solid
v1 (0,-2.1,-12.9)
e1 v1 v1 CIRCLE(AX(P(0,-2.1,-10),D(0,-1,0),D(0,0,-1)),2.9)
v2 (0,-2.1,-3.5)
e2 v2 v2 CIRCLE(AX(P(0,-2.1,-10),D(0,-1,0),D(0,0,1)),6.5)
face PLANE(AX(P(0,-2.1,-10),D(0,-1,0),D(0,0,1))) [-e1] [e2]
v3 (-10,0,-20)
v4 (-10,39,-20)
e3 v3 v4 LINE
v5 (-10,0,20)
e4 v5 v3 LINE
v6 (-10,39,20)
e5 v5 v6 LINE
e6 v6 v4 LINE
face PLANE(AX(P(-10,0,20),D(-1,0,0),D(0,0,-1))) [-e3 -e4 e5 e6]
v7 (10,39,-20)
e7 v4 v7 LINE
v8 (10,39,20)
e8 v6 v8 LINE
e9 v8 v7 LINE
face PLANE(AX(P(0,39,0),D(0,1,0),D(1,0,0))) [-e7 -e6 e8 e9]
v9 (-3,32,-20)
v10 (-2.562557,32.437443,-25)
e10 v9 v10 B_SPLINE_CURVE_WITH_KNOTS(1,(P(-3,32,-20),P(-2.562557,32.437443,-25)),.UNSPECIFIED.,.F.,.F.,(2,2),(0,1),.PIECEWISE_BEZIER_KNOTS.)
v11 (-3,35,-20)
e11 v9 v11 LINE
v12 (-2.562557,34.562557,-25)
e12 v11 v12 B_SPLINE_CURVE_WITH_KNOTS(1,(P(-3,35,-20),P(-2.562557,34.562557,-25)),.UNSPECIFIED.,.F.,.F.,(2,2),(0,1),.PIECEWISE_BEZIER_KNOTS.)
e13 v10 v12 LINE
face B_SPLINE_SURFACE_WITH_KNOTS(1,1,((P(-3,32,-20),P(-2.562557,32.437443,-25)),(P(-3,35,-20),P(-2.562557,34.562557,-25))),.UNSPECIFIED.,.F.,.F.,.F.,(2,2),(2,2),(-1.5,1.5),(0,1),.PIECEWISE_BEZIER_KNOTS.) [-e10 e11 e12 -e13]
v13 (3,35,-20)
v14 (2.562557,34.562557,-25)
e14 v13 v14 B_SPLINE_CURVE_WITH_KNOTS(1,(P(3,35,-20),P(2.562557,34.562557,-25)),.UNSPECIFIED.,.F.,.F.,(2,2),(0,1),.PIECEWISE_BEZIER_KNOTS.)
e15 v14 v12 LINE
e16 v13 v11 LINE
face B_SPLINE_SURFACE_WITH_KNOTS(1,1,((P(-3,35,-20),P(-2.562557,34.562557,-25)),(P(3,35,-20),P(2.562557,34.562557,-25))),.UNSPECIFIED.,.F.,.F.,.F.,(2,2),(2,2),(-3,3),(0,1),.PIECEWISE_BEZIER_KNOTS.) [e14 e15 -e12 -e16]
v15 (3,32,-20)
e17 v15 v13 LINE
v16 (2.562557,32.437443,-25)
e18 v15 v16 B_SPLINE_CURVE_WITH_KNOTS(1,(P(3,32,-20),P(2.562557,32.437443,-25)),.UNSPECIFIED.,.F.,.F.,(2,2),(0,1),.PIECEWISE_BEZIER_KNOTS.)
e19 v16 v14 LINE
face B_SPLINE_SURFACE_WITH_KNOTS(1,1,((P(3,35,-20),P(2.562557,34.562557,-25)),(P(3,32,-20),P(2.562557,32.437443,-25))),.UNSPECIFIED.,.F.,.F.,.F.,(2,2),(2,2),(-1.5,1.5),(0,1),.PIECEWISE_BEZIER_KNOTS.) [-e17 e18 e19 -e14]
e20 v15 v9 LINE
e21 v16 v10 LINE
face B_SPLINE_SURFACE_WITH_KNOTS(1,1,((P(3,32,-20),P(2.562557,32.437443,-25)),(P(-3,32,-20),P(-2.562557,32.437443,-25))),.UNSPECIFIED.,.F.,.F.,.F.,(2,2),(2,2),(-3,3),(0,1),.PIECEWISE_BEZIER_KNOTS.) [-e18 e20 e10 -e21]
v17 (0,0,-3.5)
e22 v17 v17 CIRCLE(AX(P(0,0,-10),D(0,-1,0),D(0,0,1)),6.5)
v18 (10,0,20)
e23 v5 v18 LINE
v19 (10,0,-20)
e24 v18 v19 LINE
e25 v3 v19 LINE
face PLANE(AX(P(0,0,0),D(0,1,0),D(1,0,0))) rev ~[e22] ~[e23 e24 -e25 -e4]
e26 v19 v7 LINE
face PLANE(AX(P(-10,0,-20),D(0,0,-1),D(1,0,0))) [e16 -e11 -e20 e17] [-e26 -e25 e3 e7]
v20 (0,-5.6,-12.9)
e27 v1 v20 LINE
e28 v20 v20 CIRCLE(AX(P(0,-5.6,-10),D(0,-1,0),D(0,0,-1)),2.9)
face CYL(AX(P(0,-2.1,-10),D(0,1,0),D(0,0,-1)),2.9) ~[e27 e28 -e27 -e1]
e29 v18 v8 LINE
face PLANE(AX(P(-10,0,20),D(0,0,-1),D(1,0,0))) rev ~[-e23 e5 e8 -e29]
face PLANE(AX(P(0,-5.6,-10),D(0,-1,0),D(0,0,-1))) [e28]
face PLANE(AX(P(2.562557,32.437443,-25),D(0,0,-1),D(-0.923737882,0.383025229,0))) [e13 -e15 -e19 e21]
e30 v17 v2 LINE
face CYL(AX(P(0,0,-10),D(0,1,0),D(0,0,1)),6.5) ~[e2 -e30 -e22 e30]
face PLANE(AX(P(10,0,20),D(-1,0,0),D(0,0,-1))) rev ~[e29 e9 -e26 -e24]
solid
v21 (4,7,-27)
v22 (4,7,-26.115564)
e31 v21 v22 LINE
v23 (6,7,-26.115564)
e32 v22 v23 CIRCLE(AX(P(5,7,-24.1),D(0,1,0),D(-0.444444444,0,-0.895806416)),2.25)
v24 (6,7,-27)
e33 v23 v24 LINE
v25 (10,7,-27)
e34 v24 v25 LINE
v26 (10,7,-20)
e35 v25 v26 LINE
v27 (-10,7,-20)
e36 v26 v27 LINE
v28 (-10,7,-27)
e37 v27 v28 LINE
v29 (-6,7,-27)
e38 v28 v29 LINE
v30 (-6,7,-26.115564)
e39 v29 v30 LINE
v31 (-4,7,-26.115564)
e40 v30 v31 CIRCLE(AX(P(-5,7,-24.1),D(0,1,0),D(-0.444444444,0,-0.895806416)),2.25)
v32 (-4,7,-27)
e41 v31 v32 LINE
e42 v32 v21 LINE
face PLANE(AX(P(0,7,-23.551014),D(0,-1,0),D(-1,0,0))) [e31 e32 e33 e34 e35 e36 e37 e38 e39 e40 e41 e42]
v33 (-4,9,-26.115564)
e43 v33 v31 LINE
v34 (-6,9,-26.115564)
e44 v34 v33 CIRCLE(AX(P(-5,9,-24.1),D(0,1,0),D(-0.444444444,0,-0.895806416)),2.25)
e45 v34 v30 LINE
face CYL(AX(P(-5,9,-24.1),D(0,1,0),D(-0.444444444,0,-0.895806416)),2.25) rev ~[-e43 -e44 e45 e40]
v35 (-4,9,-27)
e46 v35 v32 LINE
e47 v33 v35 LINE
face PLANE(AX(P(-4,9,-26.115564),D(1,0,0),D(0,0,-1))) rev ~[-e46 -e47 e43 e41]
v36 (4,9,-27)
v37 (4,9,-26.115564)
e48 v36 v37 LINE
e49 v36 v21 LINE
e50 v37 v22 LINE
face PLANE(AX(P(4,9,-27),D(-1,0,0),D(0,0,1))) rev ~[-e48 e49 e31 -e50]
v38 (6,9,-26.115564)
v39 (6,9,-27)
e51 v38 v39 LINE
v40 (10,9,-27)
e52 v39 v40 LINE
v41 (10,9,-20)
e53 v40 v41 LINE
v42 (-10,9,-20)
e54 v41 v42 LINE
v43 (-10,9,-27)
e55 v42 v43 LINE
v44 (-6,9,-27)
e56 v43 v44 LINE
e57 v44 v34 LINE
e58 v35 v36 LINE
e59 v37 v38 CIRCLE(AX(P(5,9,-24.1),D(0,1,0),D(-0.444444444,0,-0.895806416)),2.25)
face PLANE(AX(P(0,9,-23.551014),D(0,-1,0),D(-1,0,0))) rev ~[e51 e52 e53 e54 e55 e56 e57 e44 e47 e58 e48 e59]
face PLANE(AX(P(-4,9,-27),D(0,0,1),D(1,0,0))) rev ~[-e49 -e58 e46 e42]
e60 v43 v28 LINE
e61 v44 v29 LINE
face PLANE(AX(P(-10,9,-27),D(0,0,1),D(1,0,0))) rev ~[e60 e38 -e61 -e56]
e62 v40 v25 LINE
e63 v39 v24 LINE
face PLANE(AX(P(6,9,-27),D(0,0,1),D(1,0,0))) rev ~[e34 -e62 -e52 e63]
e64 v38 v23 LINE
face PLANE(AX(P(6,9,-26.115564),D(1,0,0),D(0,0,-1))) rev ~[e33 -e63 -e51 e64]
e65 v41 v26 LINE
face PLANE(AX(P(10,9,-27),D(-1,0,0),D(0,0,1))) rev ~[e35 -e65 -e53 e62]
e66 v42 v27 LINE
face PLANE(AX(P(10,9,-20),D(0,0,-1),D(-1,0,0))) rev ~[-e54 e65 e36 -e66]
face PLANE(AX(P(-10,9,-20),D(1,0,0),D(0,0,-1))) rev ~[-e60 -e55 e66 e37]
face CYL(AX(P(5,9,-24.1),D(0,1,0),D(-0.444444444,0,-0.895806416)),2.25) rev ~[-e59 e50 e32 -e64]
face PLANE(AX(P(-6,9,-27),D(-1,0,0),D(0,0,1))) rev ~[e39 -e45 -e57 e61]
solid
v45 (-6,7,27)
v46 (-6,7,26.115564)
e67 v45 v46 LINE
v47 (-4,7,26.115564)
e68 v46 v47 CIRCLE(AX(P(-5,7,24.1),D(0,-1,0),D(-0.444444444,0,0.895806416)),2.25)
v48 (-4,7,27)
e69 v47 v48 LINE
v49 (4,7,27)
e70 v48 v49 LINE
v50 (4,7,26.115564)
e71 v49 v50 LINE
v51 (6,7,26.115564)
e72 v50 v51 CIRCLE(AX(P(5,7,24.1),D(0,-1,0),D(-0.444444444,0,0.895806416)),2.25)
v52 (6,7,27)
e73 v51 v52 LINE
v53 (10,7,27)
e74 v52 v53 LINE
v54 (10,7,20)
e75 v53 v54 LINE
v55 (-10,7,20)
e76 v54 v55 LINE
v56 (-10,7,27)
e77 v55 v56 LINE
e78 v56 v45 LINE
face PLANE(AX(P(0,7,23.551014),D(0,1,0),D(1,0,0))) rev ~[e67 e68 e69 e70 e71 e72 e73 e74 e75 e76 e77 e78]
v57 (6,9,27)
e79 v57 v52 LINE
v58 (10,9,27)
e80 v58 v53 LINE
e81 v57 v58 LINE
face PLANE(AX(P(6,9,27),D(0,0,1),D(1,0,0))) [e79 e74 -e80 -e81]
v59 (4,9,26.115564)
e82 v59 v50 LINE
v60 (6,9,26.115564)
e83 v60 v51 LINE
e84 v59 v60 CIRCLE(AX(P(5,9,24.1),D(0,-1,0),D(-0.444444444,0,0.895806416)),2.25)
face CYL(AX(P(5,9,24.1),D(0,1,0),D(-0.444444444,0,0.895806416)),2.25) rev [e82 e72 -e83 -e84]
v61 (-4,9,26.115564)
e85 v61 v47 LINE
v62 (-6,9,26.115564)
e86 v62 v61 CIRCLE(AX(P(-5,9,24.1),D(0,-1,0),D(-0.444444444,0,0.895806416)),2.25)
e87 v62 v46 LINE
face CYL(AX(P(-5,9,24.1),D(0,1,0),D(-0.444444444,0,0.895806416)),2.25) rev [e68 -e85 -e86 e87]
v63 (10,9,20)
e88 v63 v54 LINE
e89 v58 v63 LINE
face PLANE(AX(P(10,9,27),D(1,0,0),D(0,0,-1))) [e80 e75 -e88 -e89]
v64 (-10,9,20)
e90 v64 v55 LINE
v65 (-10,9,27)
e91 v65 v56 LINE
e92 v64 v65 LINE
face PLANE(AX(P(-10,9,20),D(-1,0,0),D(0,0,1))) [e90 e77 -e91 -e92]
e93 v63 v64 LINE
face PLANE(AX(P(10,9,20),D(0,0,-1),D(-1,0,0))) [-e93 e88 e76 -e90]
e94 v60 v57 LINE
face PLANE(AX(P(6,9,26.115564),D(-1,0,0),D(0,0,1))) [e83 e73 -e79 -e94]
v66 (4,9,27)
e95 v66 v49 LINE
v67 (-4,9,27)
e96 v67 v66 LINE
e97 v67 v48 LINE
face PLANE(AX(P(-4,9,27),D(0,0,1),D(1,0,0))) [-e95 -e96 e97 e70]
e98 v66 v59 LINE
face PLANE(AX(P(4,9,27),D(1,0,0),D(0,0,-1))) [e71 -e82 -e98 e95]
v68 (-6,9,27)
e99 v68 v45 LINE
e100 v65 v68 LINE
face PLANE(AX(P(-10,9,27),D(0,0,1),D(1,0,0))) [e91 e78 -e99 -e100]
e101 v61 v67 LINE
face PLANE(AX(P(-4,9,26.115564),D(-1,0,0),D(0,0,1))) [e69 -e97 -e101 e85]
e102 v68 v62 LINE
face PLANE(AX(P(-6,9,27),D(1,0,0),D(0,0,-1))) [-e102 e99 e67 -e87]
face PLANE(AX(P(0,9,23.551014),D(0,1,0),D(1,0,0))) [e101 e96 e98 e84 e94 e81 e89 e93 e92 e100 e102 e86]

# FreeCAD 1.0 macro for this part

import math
import FreeCAD as App
import Part
import Sketcher


def add_polygon(sketch, points):
    """Adds a closed chain of lines whose ends are joined by coincident constraints."""
    first, n = sketch.GeometryCount, len(points)
    for a, b in zip(points, points[1:] + points[:1]):
        sketch.addGeometry(Part.LineSegment(App.Vector(*a, 0), App.Vector(*b, 0)), False)
    for i in range(n):
        sketch.addConstraint(Sketcher.Constraint("Coincident", first + i, 2, first + (i + 1) % n, 1))

doc = App.newDocument("Part")
body = doc.addObject("PartDesign::Body", "Body")

# Sketch on XZ plane
sketch1 = body.newObject("Sketcher::SketchObject", "Sketch")
sketch1.AttachmentSupport = (doc.getObject("XZ_Plane"), [""])
sketch1.MapMode = "FlatFace"
add_polygon(sketch1, [(-10, -20), (-10, 20), (10, 20), (10, -20)])  # lines 0-3
sketch1.addConstraint([
    Sketcher.Constraint("Vertical", 0),
    Sketcher.Constraint("Horizontal", 1),
    Sketcher.Constraint("Vertical", 2),
    Sketcher.Constraint("Horizontal", 3),
    Sketcher.Constraint("Symmetric", 0, 2, 2, 2, -1, 1),
    Sketcher.Constraint("DistanceX", 1, 1, 1, 2, 20.0),
    Sketcher.Constraint("DistanceY", 0, 1, 0, 2, 40.0),
])
pad1 = body.newObject("PartDesign::Pad", "Pad")
pad1.Profile = sketch1
pad1.Length = 39
pad1.Reversed = True

# Sketch on XZ plane
sketch2 = body.newObject("Sketcher::SketchObject", "Sketch001")
sketch2.AttachmentSupport = (doc.getObject("XZ_Plane"), [""])
sketch2.MapMode = "FlatFace"
sketch2.addGeometry(Part.Circle(App.Vector(0, -10, 0), App.Vector(0, 0, 1), 6.5), False)
sketch2.addConstraint([
    Sketcher.Constraint("PointOnObject", 0, 3, -2),
    Sketcher.Constraint("Diameter", 0, 13.0),
    Sketcher.Constraint("DistanceY", 0, 3, -1, 1, 10.0),
])
pad2 = body.newObject("PartDesign::Pad", "Pad001")
pad2.Profile = sketch2
pad2.Length = 2.1

# Sketch on XZ plane
sketch3 = body.newObject("Sketcher::SketchObject", "Sketch002")
sketch3.AttachmentSupport = (doc.getObject("XZ_Plane"), [""])
sketch3.MapMode = "FlatFace"
sketch3.AttachmentOffset = App.Placement(App.Vector(0, 0, 2.1), App.Rotation())
sketch3.addGeometry(Part.Circle(App.Vector(0, -10, 0), App.Vector(0, 0, 1), 2.9), False)
sketch3.addConstraint([
    Sketcher.Constraint("PointOnObject", 0, 3, -2),
    Sketcher.Constraint("Diameter", 0, 5.8),
    Sketcher.Constraint("DistanceY", 0, 3, -1, 1, 10.0),
])
pad3 = body.newObject("PartDesign::Pad", "Pad002")
pad3.Profile = sketch3
pad3.Length = 3.5

# Sketch on XY plane
sketch4 = body.newObject("Sketcher::SketchObject", "Sketch003")
sketch4.AttachmentSupport = (doc.getObject("XY_Plane"), [""])
sketch4.MapMode = "FlatFace"
sketch4.AttachmentOffset = App.Placement(App.Vector(0, 0, -20), App.Rotation())
add_polygon(sketch4, [(3, 35), (3, 32), (-3, 32), (-3, 35)])  # lines 0-3
sketch4.addConstraint([
    Sketcher.Constraint("Vertical", 0),
    Sketcher.Constraint("Horizontal", 1),
    Sketcher.Constraint("Vertical", 2),
    Sketcher.Constraint("Horizontal", 3),
    Sketcher.Constraint("DistanceX", 1, 2, 1, 1, 6.0),
    Sketcher.Constraint("DistanceY", 0, 2, 0, 1, 3.0),
    Sketcher.Constraint("DistanceX", -1, 1, 0, 2, 3.0),
    Sketcher.Constraint("DistanceY", -1, 1, 0, 2, 32.0),
])
pad4 = body.newObject("PartDesign::Pad", "Pad003")
pad4.Profile = sketch4
pad4.Length = 5
pad4.Reversed = True
pad4.TaperAngle = -5
body2 = doc.addObject("PartDesign::Body", "Body001")

# Sketch on XZ plane
sketch5 = body2.newObject("Sketcher::SketchObject", "Sketch004")
sketch5.AttachmentSupport = (doc.getObject("XZ_Plane001"), [""])
sketch5.MapMode = "FlatFace"
sketch5.AttachmentOffset = App.Placement(App.Vector(0, 0, -8), App.Rotation())
sketch5.addGeometry([
    Part.LineSegment(App.Vector(-10, 20, 0), App.Vector(10, 20, 0)),  # 0
    Part.LineSegment(App.Vector(10, 20, 0), App.Vector(10, 27, 0)),  # 1
    Part.LineSegment(App.Vector(10, 27, 0), App.Vector(6, 27, 0)),  # 2
    Part.LineSegment(App.Vector(6, 27, 0), App.Vector(6, 26.115564, 0)),  # 3
    Part.ArcOfCircle(Part.Circle(App.Vector(5, 24.1, 0), App.Vector(0, 0, 1), 2.25), math.radians(116.3878), math.radians(423.6122)),  # 4
    Part.LineSegment(App.Vector(4, 26.115564, 0), App.Vector(4, 27, 0)),  # 5
    Part.LineSegment(App.Vector(4, 27, 0), App.Vector(-4, 27, 0)),  # 6
    Part.LineSegment(App.Vector(-4, 27, 0), App.Vector(-4, 26.115564, 0)),  # 7
    Part.ArcOfCircle(Part.Circle(App.Vector(-5, 24.1, 0), App.Vector(0, 0, 1), 2.25), math.radians(116.3878), math.radians(423.6122)),  # 8
    Part.LineSegment(App.Vector(-6, 26.115564, 0), App.Vector(-6, 27, 0)),  # 9
    Part.LineSegment(App.Vector(-6, 27, 0), App.Vector(-10, 27, 0)),  # 10
    Part.LineSegment(App.Vector(-10, 27, 0), App.Vector(-10, 20, 0)),  # 11
], False)
sketch5.addConstraint([
    Sketcher.Constraint("Coincident", 0, 2, 1, 1),
    Sketcher.Constraint("Coincident", 1, 2, 2, 1),
    Sketcher.Constraint("Coincident", 2, 2, 3, 1),
    Sketcher.Constraint("Coincident", 3, 2, 4, 2),
    Sketcher.Constraint("Coincident", 4, 1, 5, 1),
    Sketcher.Constraint("Coincident", 5, 2, 6, 1),
    Sketcher.Constraint("Coincident", 6, 2, 7, 1),
    Sketcher.Constraint("Coincident", 7, 2, 8, 2),
    Sketcher.Constraint("Coincident", 8, 1, 9, 1),
    Sketcher.Constraint("Coincident", 9, 2, 10, 1),
    Sketcher.Constraint("Coincident", 10, 2, 11, 1),
    Sketcher.Constraint("Coincident", 11, 2, 0, 1),
    Sketcher.Constraint("Horizontal", 0),
    Sketcher.Constraint("Vertical", 1),
    Sketcher.Constraint("Horizontal", 2),
    Sketcher.Constraint("Vertical", 3),
    Sketcher.Constraint("Vertical", 5),
    Sketcher.Constraint("Horizontal", 6),
    Sketcher.Constraint("Vertical", 7),
    Sketcher.Constraint("Vertical", 9),
    Sketcher.Constraint("Horizontal", 10),
    Sketcher.Constraint("Vertical", 11),
    Sketcher.Constraint("Equal", 4, 8),
    Sketcher.Constraint("Symmetric", 4, 3, 8, 3, -2),
    Sketcher.Constraint("Symmetric", 2, 2, 9, 2, -2),
    Sketcher.Constraint("Horizontal", 3, 2, 4, 1),
    Sketcher.Constraint("Horizontal", 2, 2, 5, 2),
    Sketcher.Constraint("Horizontal", 4, 1, 7, 2),
    Sketcher.Constraint("Equal", 2, 10),
    Sketcher.Constraint("DistanceX", 0, 1, 0, 2, 20.0),
    Sketcher.Constraint("DistanceX", 2, 2, 2, 1, 4.0),
    Sketcher.Constraint("DistanceX", 6, 2, 6, 1, 8.0),
    Sketcher.Constraint("DistanceY", 1, 1, 1, 2, 7.0),
    Sketcher.Constraint("Radius", 4, 2.25),
    Sketcher.Constraint("DistanceY", -1, 1, 0, 2, 20.0),
    Sketcher.Constraint("DistanceY", -1, 1, 4, 3, 24.1),
])
pad5 = body2.newObject("PartDesign::Pad", "Pad004")
pad5.Profile = sketch5
pad5.Type = "TwoLengths"
pad5.Length = 1
pad5.Length2 = 1
body3 = doc.addObject("PartDesign::Body", "Body002")

# Sketch on XZ plane
sketch6 = body3.newObject("Sketcher::SketchObject", "Sketch005")
sketch6.AttachmentSupport = (doc.getObject("XZ_Plane002"), [""])
sketch6.MapMode = "FlatFace"
sketch6.AttachmentOffset = App.Placement(App.Vector(0, 0, -8), App.Rotation())
sketch6.addGeometry([
    Part.LineSegment(App.Vector(10, -20, 0), App.Vector(-10, -20, 0)),  # 0
    Part.LineSegment(App.Vector(-10, -20, 0), App.Vector(-10, -27, 0)),  # 1
    Part.LineSegment(App.Vector(-10, -27, 0), App.Vector(-6, -27, 0)),  # 2
    Part.LineSegment(App.Vector(-6, -27, 0), App.Vector(-6, -26.115564, 0)),  # 3
    Part.ArcOfCircle(Part.Circle(App.Vector(-5, -24.1, 0), App.Vector(0, 0, 1), 2.25), math.radians(-63.6122), math.radians(243.6122)),  # 4
    Part.LineSegment(App.Vector(-4, -26.115564, 0), App.Vector(-4, -27, 0)),  # 5
    Part.LineSegment(App.Vector(-4, -27, 0), App.Vector(4, -27, 0)),  # 6
    Part.LineSegment(App.Vector(4, -27, 0), App.Vector(4, -26.115564, 0)),  # 7
    Part.ArcOfCircle(Part.Circle(App.Vector(5, -24.1, 0), App.Vector(0, 0, 1), 2.25), math.radians(-63.6122), math.radians(243.6122)),  # 8
    Part.LineSegment(App.Vector(6, -26.115564, 0), App.Vector(6, -27, 0)),  # 9
    Part.LineSegment(App.Vector(6, -27, 0), App.Vector(10, -27, 0)),  # 10
    Part.LineSegment(App.Vector(10, -27, 0), App.Vector(10, -20, 0)),  # 11
], False)
sketch6.addConstraint([
    Sketcher.Constraint("Coincident", 0, 2, 1, 1),
    Sketcher.Constraint("Coincident", 1, 2, 2, 1),
    Sketcher.Constraint("Coincident", 2, 2, 3, 1),
    Sketcher.Constraint("Coincident", 3, 2, 4, 2),
    Sketcher.Constraint("Coincident", 4, 1, 5, 1),
    Sketcher.Constraint("Coincident", 5, 2, 6, 1),
    Sketcher.Constraint("Coincident", 6, 2, 7, 1),
    Sketcher.Constraint("Coincident", 7, 2, 8, 2),
    Sketcher.Constraint("Coincident", 8, 1, 9, 1),
    Sketcher.Constraint("Coincident", 9, 2, 10, 1),
    Sketcher.Constraint("Coincident", 10, 2, 11, 1),
    Sketcher.Constraint("Coincident", 11, 2, 0, 1),
    Sketcher.Constraint("Horizontal", 0),
    Sketcher.Constraint("Vertical", 1),
    Sketcher.Constraint("Horizontal", 2),
    Sketcher.Constraint("Vertical", 3),
    Sketcher.Constraint("Vertical", 5),
    Sketcher.Constraint("Horizontal", 6),
    Sketcher.Constraint("Vertical", 7),
    Sketcher.Constraint("Vertical", 9),
    Sketcher.Constraint("Horizontal", 10),
    Sketcher.Constraint("Vertical", 11),
    Sketcher.Constraint("Equal", 4, 8),
    Sketcher.Constraint("Symmetric", 4, 3, 8, 3, -2),
    Sketcher.Constraint("Symmetric", 2, 2, 9, 2, -2),
    Sketcher.Constraint("Horizontal", 3, 2, 4, 1),
    Sketcher.Constraint("Horizontal", 2, 2, 5, 2),
    Sketcher.Constraint("Horizontal", 4, 1, 7, 2),
    Sketcher.Constraint("Equal", 2, 10),
    Sketcher.Constraint("DistanceX", 0, 2, 0, 1, 20.0),
    Sketcher.Constraint("DistanceX", 2, 1, 2, 2, 4.0),
    Sketcher.Constraint("DistanceX", 6, 1, 6, 2, 8.0),
    Sketcher.Constraint("DistanceY", 1, 2, 1, 1, 7.0),
    Sketcher.Constraint("Radius", 4, 2.25),
    Sketcher.Constraint("DistanceY", 0, 2, -1, 1, 20.0),
    Sketcher.Constraint("DistanceY", 4, 3, -1, 1, 24.1),
])
pad6 = body3.newObject("PartDesign::Pad", "Pad005")
pad6.Profile = sketch6
pad6.Type = "TwoLengths"
pad6.Length = 1
pad6.Length2 = 1

doc.recompute()
